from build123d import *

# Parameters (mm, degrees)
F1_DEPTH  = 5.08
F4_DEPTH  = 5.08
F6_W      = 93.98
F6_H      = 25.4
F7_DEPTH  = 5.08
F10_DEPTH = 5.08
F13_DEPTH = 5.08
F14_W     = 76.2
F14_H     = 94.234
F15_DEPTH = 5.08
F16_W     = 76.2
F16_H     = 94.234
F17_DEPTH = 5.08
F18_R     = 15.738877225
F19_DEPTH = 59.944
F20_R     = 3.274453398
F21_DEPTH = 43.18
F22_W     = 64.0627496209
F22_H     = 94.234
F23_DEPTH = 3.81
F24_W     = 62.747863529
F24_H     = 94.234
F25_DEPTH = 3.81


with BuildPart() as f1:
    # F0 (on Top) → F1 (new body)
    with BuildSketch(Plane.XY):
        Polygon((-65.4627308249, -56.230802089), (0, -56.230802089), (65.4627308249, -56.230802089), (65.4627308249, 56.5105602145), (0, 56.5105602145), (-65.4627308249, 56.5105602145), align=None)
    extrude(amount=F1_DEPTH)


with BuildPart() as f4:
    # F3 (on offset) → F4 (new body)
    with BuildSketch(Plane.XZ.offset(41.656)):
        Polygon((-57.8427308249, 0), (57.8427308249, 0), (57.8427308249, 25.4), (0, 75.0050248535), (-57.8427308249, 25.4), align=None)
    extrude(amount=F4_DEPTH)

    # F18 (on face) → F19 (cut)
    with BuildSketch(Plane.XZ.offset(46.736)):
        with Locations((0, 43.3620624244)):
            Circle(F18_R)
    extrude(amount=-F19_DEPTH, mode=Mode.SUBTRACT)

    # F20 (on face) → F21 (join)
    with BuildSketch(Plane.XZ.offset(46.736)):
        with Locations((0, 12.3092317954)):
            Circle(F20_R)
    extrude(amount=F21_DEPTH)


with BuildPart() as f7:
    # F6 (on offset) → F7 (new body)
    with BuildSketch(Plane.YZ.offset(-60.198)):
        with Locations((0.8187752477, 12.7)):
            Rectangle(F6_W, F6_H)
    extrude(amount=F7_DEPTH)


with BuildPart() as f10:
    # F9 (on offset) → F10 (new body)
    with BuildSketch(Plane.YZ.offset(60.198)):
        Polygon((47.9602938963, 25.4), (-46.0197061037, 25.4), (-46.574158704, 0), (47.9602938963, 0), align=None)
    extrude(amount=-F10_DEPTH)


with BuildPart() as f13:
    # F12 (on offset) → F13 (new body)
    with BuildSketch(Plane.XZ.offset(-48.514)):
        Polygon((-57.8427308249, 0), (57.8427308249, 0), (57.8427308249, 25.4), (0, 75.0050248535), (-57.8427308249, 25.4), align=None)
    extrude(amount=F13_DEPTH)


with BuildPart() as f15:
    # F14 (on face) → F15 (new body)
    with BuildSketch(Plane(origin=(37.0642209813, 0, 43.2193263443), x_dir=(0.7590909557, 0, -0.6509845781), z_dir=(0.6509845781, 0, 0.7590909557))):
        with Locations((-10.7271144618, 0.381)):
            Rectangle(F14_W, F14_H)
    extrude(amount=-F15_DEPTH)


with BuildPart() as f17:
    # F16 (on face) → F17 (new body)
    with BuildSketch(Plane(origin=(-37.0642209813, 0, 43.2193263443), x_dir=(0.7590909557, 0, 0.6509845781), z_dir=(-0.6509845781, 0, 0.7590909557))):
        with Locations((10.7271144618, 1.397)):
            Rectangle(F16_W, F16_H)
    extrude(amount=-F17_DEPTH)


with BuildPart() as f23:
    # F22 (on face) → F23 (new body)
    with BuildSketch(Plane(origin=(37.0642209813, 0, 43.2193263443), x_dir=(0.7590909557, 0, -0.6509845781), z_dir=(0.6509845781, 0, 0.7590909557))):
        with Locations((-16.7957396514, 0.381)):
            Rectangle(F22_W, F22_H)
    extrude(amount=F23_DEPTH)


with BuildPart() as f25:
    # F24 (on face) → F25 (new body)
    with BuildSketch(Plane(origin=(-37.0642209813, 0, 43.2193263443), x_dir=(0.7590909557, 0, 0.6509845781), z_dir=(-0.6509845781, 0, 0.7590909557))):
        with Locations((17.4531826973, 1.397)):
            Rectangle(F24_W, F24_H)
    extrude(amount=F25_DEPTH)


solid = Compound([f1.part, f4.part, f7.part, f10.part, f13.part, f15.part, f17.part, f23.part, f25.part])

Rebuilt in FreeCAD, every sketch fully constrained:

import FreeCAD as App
import Part
import Sketcher
Q = App.Units.Quantity

doc = App.newDocument("Part")
params = doc.addObject("Spreadsheet::Sheet", "Params")
for row, (alias, value) in enumerate([
    ("pad1_length", "0.2 in"),
    ("sketch2_height", "1 in"),
    ("sketch2_length", "3 in"),
    ("pad2_length", "0.2 in"),
    ("pocket1_length", "2.36 in"),
    ("pad3_length", "1.7 in"),
    ("sketch5_height", "1 in"),
    ("sketch5_width", "3.7 in"),
    ("pad4_length", "0.2 in"),
    ("sketch6_height", "1 in"),
    ("sketch6_width", "3.7 in"),
    ("pad5_length", "0.2 in"),
    ("sketch7_height", "1 in"),
    ("sketch7_length", "3 in"),
    ("pad6_length", "0.2 in"),
    ("sketch8_width", "3 in"),
    ("sketch8_height", "3.71 in"),
    ("pad7_length", "0.2 in"),
    ("sketch9_width", "3 in"),
    ("sketch9_height", "3.71 in"),
    ("pad8_length", "0.2 in"),
    ("sketch10_height", "3.71 in"),
    ("pad9_length", "0.15 in"),
    ("sketch11_height", "3.71 in"),
    ("pad10_length", "0.15 in"),
], start=1):
    params.set(f"A{row}", alias)
    params.set(f"B{row}", "=" + value)
    params.setAlias(f"B{row}", alias)

body = doc.addObject("PartDesign::Body", "Body")

# Sketch on XY plane
sketch1 = doc.addObject("Sketcher::SketchObject", "Sketch")
body.addObject(sketch1)
sketch1.AttachmentSupport = (doc.XY_Plane, [""])
sketch1.MapMode = "FlatFace"
sketch1.addGeometry(Part.LineSegment(App.Vector(-65, -56, 0), App.Vector(65, -56, 0)), False)
sketch1.addGeometry(Part.LineSegment(App.Vector(65, -56, 0), App.Vector(65, 57, 0)), False)
sketch1.addGeometry(Part.LineSegment(App.Vector(65, 57, 0), App.Vector(-65, 57, 0)), False)
sketch1.addGeometry(Part.LineSegment(App.Vector(-65, 57, 0), App.Vector(-65, -56, 0)), False)
sketch1.addConstraint(Sketcher.Constraint("Coincident", 0, 2, 1, 1))
sketch1.addConstraint(Sketcher.Constraint("Coincident", 1, 2, 2, 1))
sketch1.addConstraint(Sketcher.Constraint("Coincident", 2, 2, 3, 1))
sketch1.addConstraint(Sketcher.Constraint("Coincident", 3, 2, 0, 1))
sketch1.addConstraint(Sketcher.Constraint("Horizontal", 0))
sketch1.addConstraint(Sketcher.Constraint("Vertical", 1))
sketch1.addConstraint(Sketcher.Constraint("Horizontal", 2))
sketch1.addConstraint(Sketcher.Constraint("Vertical", 3))
sketch1.addConstraint(Sketcher.Constraint("DistanceX", 0, 1, 0, 2, Q("130.925462 mm")))
sketch1.addConstraint(Sketcher.Constraint("DistanceY", 1, 1, 1, 2, Q("112.741362 mm")))
sketch1.addConstraint(Sketcher.Constraint("DistanceX", -1, 1, 0, 2, Q("65.462731 mm")))
sketch1.addConstraint(Sketcher.Constraint("DistanceY", -1, 1, 1, 2, Q("56.51056 mm")))
pad1 = doc.addObject("PartDesign::Pad", "Pad")
body.addObject(pad1)
pad1.Profile = sketch1
pad1.setExpression("Length", "Params.pad1_length")
body2 = doc.addObject("PartDesign::Body", "Body001")

# Sketch on XZ plane
sketch2 = doc.addObject("Sketcher::SketchObject", "Sketch001")
body2.addObject(sketch2)
sketch2.AttachmentSupport = (doc.getObject("XZ_Plane001"), [""])
sketch2.MapMode = "FlatFace"
sketch2.AttachmentOffset = App.Placement(App.Vector(0, 0, 1.64 * 25.4), App.Rotation())
sketch2.addGeometry(Part.LineSegment(App.Vector(-58, 0, 0), App.Vector(58, 0, 0)), False)
sketch2.addGeometry(Part.LineSegment(App.Vector(58, 0, 0), App.Vector(58, 25, 0)), False)
sketch2.addGeometry(Part.LineSegment(App.Vector(58, 25, 0), App.Vector(0, 75, 0)), False)
sketch2.addGeometry(Part.LineSegment(App.Vector(0, 75, 0), App.Vector(-58, 25, 0)), False)
sketch2.addGeometry(Part.LineSegment(App.Vector(-58, 25, 0), App.Vector(-58, 0, 0)), False)
sketch2.addConstraint(Sketcher.Constraint("Coincident", 0, 2, 1, 1))
sketch2.addConstraint(Sketcher.Constraint("Coincident", 1, 2, 2, 1))
sketch2.addConstraint(Sketcher.Constraint("Coincident", 2, 2, 3, 1))
sketch2.addConstraint(Sketcher.Constraint("Coincident", 3, 2, 4, 1))
sketch2.addConstraint(Sketcher.Constraint("Coincident", 4, 2, 0, 1))
sketch2.addConstraint(Sketcher.Constraint("Horizontal", 0))
sketch2.addConstraint(Sketcher.Constraint("Vertical", 1))
sketch2.addConstraint(Sketcher.Constraint("Vertical", 4))
sketch2.addConstraint(Sketcher.Constraint("Symmetric", 0, 2, 4, 2, -1, 1))
sketch2.addConstraint(Sketcher.Constraint("PointOnObject", 2, 2, -2))
sketch2.addConstraint(Sketcher.Constraint("Horizontal", 1, 2, 3, 2))
sketch2.addConstraint(Sketcher.Constraint("DistanceY", 1, 1, 1, 2, Q("1 in")))
sketch2.addConstraint(Sketcher.Constraint("Distance", 2, Q("3 in")))
sketch2.addConstraint(Sketcher.Constraint("DistanceX", 0, 1, 0, 2, Q("115.685462 mm")))
sketch2.setExpression("Constraints[11]", "Params.sketch2_height")
sketch2.setExpression("Constraints[12]", "Params.sketch2_length")
pad2 = doc.addObject("PartDesign::Pad", "Pad001")
body2.addObject(pad2)
pad2.Profile = sketch2
pad2.setExpression("Length", "Params.pad2_length")

# Sketch on XZ plane
sketch3 = doc.addObject("Sketcher::SketchObject", "Sketch002")
body2.addObject(sketch3)
sketch3.AttachmentSupport = (doc.getObject("XZ_Plane001"), [""])
sketch3.MapMode = "FlatFace"
sketch3.AttachmentOffset = App.Placement(App.Vector(0, 0, 1.84 * 25.4), App.Rotation())
sketch3.addGeometry(Part.Circle(App.Vector(0, 43, 0), App.Vector(0, 0, 1), 16), False)
sketch3.addConstraint(Sketcher.Constraint("PointOnObject", 0, 3, -2))
sketch3.addConstraint(Sketcher.Constraint("Diameter", 0, Q("31.477754 mm")))
sketch3.addConstraint(Sketcher.Constraint("DistanceY", -1, 1, 0, 3, Q("43.362062 mm")))
pocket1 = doc.addObject("PartDesign::Pocket", "Pocket")
body2.addObject(pocket1)
pocket1.Profile = sketch3
pocket1.setExpression("Length", "Params.pocket1_length")

# Sketch on XZ plane
sketch4 = doc.addObject("Sketcher::SketchObject", "Sketch003")
body2.addObject(sketch4)
sketch4.AttachmentSupport = (doc.getObject("XZ_Plane001"), [""])
sketch4.MapMode = "FlatFace"
sketch4.AttachmentOffset = App.Placement(App.Vector(0, 0, 1.84 * 25.4), App.Rotation())
sketch4.addGeometry(Part.Circle(App.Vector(0, 12.3, 0), App.Vector(0, 0, 1), 3.3), False)
sketch4.addConstraint(Sketcher.Constraint("PointOnObject", 0, 3, -2))
sketch4.addConstraint(Sketcher.Constraint("Diameter", 0, Q("6.548907 mm")))
sketch4.addConstraint(Sketcher.Constraint("DistanceY", -1, 1, 0, 3, Q("12.309232 mm")))
pad3 = doc.addObject("PartDesign::Pad", "Pad002")
body2.addObject(pad3)
pad3.Profile = sketch4
pad3.setExpression("Length", "Params.pad3_length")
body3 = doc.addObject("PartDesign::Body", "Body002")

# Sketch on YZ plane
sketch5 = doc.addObject("Sketcher::SketchObject", "Sketch004")
body3.addObject(sketch5)
sketch5.AttachmentSupport = (doc.getObject("YZ_Plane002"), [""])
sketch5.MapMode = "FlatFace"
sketch5.AttachmentOffset = App.Placement(App.Vector(0, 0, -2.37 * 25.4), App.Rotation())
sketch5.addGeometry(Part.LineSegment(App.Vector(-46, 25, 0), App.Vector(-46, 0, 0)), False)
sketch5.addGeometry(Part.LineSegment(App.Vector(-46, 0, 0), App.Vector(48, 0, 0)), False)
sketch5.addGeometry(Part.LineSegment(App.Vector(48, 0, 0), App.Vector(48, 25, 0)), False)
sketch5.addGeometry(Part.LineSegment(App.Vector(48, 25, 0), App.Vector(-46, 25, 0)), False)
sketch5.addConstraint(Sketcher.Constraint("Coincident", 0, 2, 1, 1))
sketch5.addConstraint(Sketcher.Constraint("Coincident", 1, 2, 2, 1))
sketch5.addConstraint(Sketcher.Constraint("Coincident", 2, 2, 3, 1))
sketch5.addConstraint(Sketcher.Constraint("Coincident", 3, 2, 0, 1))
sketch5.addConstraint(Sketcher.Constraint("Vertical", 0))
sketch5.addConstraint(Sketcher.Constraint("Horizontal", 1))
sketch5.addConstraint(Sketcher.Constraint("Vertical", 2))
sketch5.addConstraint(Sketcher.Constraint("Horizontal", 3))
sketch5.addConstraint(Sketcher.Constraint("PointOnObject", 0, 2, -1))
sketch5.addConstraint(Sketcher.Constraint("DistanceY", 0, 2, 0, 1, Q("1 in")))
sketch5.addConstraint(Sketcher.Constraint("DistanceX", 1, 1, 1, 2, Q("3.7 in")))
sketch5.addConstraint(Sketcher.Constraint("DistanceX", 0, 2, -1, 1, Q("46.171225 mm")))
sketch5.setExpression("Constraints[9]", "Params.sketch5_height")
sketch5.setExpression("Constraints[10]", "Params.sketch5_width")
pad4 = doc.addObject("PartDesign::Pad", "Pad003")
body3.addObject(pad4)
pad4.Profile = sketch5
pad4.setExpression("Length", "Params.pad4_length")
body4 = doc.addObject("PartDesign::Body", "Body003")

# Sketch on YZ plane
sketch6 = doc.addObject("Sketcher::SketchObject", "Sketch005")
body4.addObject(sketch6)
sketch6.AttachmentSupport = (doc.getObject("YZ_Plane003"), [""])
sketch6.MapMode = "FlatFace"
sketch6.AttachmentOffset = App.Placement(App.Vector(0, 0, 2.37 * 25.4), App.Rotation())
sketch6.addGeometry(Part.LineSegment(App.Vector(48, 25, 0), App.Vector(-46, 25, 0)), False)
sketch6.addGeometry(Part.LineSegment(App.Vector(-46, 25, 0), App.Vector(-47, 0, 0)), False)
sketch6.addGeometry(Part.LineSegment(App.Vector(-47, 0, 0), App.Vector(48, 0, 0)), False)
sketch6.addGeometry(Part.LineSegment(App.Vector(48, 0, 0), App.Vector(48, 25, 0)), False)
sketch6.addConstraint(Sketcher.Constraint("Coincident", 0, 2, 1, 1))
sketch6.addConstraint(Sketcher.Constraint("Coincident", 1, 2, 2, 1))
sketch6.addConstraint(Sketcher.Constraint("Coincident", 2, 2, 3, 1))
sketch6.addConstraint(Sketcher.Constraint("Coincident", 3, 2, 0, 1))
sketch6.addConstraint(Sketcher.Constraint("Horizontal", 0))
sketch6.addConstraint(Sketcher.Constraint("Horizontal", 2))
sketch6.addConstraint(Sketcher.Constraint("Vertical", 3))
sketch6.addConstraint(Sketcher.Constraint("PointOnObject", 1, 2, -1))
sketch6.addConstraint(Sketcher.Constraint("DistanceY", 3, 1, 3, 2, Q("1 in")))
sketch6.addConstraint(Sketcher.Constraint("DistanceX", 0, 2, 0, 1, Q("3.7 in")))
sketch6.addConstraint(Sketcher.Constraint("Distance", 1, Q("25.406051 mm")))
sketch6.addConstraint(Sketcher.Constraint("DistanceX", 1, 2, -1, 1, Q("46.574159 mm")))
sketch6.setExpression("Constraints[8]", "Params.sketch6_height")
sketch6.setExpression("Constraints[9]", "Params.sketch6_width")
pad5 = doc.addObject("PartDesign::Pad", "Pad004")
body4.addObject(pad5)
pad5.Profile = sketch6
pad5.setExpression("Length", "Params.pad5_length")
pad5.Reversed = True
body5 = doc.addObject("PartDesign::Body", "Body004")

# Sketch on XZ plane
sketch7 = doc.addObject("Sketcher::SketchObject", "Sketch006")
body5.addObject(sketch7)
sketch7.AttachmentSupport = (doc.getObject("XZ_Plane004"), [""])
sketch7.MapMode = "FlatFace"
sketch7.AttachmentOffset = App.Placement(App.Vector(0, 0, -1.91 * 25.4), App.Rotation())
sketch7.addGeometry(Part.LineSegment(App.Vector(-58, 0, 0), App.Vector(58, 0, 0)), False)
sketch7.addGeometry(Part.LineSegment(App.Vector(58, 0, 0), App.Vector(58, 25, 0)), False)
sketch7.addGeometry(Part.LineSegment(App.Vector(58, 25, 0), App.Vector(0, 75, 0)), False)
sketch7.addGeometry(Part.LineSegment(App.Vector(0, 75, 0), App.Vector(-58, 25, 0)), False)
sketch7.addGeometry(Part.LineSegment(App.Vector(-58, 25, 0), App.Vector(-58, 0, 0)), False)
sketch7.addConstraint(Sketcher.Constraint("Coincident", 0, 2, 1, 1))
sketch7.addConstraint(Sketcher.Constraint("Coincident", 1, 2, 2, 1))
sketch7.addConstraint(Sketcher.Constraint("Coincident", 2, 2, 3, 1))
sketch7.addConstraint(Sketcher.Constraint("Coincident", 3, 2, 4, 1))
sketch7.addConstraint(Sketcher.Constraint("Coincident", 4, 2, 0, 1))
sketch7.addConstraint(Sketcher.Constraint("Horizontal", 0))
sketch7.addConstraint(Sketcher.Constraint("Vertical", 1))
sketch7.addConstraint(Sketcher.Constraint("Vertical", 4))
sketch7.addConstraint(Sketcher.Constraint("Symmetric", 0, 2, 4, 2, -1, 1))
sketch7.addConstraint(Sketcher.Constraint("PointOnObject", 2, 2, -2))
sketch7.addConstraint(Sketcher.Constraint("Horizontal", 1, 2, 3, 2))
sketch7.addConstraint(Sketcher.Constraint("DistanceY", 1, 1, 1, 2, Q("1 in")))
sketch7.addConstraint(Sketcher.Constraint("Distance", 2, Q("3 in")))
sketch7.addConstraint(Sketcher.Constraint("DistanceX", 0, 1, 0, 2, Q("115.685462 mm")))
sketch7.setExpression("Constraints[11]", "Params.sketch7_height")
sketch7.setExpression("Constraints[12]", "Params.sketch7_length")
pad6 = doc.addObject("PartDesign::Pad", "Pad005")
body5.addObject(pad6)
pad6.Profile = sketch7
pad6.setExpression("Length", "Params.pad6_length")
body6 = doc.addObject("PartDesign::Body", "Body005")

# Sketch on an angled plane
sketch8 = doc.addObject("Sketcher::SketchObject", "Sketch007")
body6.addObject(sketch8)
sketch8.Placement = App.Placement(App.Vector(37.064221, 0, 43.219326), App.Rotation(App.Vector(0.759090956, 0, -0.650984578), App.Vector(0, 1, 0), App.Vector(0.650984578, 0, 0.759090956), "ZXY"))
sketch8.addGeometry(Part.LineSegment(App.Vector(-49, 47, 0), App.Vector(-49, -47, 0)), False)
sketch8.addGeometry(Part.LineSegment(App.Vector(-49, -47, 0), App.Vector(27, -47, 0)), False)
sketch8.addGeometry(Part.LineSegment(App.Vector(27, -47, 0), App.Vector(27, 47, 0)), False)
sketch8.addGeometry(Part.LineSegment(App.Vector(27, 47, 0), App.Vector(-49, 47, 0)), False)
sketch8.addConstraint(Sketcher.Constraint("Coincident", 0, 2, 1, 1))
sketch8.addConstraint(Sketcher.Constraint("Coincident", 1, 2, 2, 1))
sketch8.addConstraint(Sketcher.Constraint("Coincident", 2, 2, 3, 1))
sketch8.addConstraint(Sketcher.Constraint("Coincident", 3, 2, 0, 1))
sketch8.addConstraint(Sketcher.Constraint("Vertical", 0))
sketch8.addConstraint(Sketcher.Constraint("Horizontal", 1))
sketch8.addConstraint(Sketcher.Constraint("Vertical", 2))
sketch8.addConstraint(Sketcher.Constraint("Horizontal", 3))
sketch8.addConstraint(Sketcher.Constraint("DistanceX", 1, 1, 1, 2, Q("3 in")))
sketch8.addConstraint(Sketcher.Constraint("DistanceY", 0, 2, 0, 1, Q("3.71 in")))
sketch8.addConstraint(Sketcher.Constraint("DistanceY", 0, 2, -1, 1, Q("1.84 in")))
sketch8.addConstraint(Sketcher.Constraint("DistanceX", 0, 2, -1, 1, Q("48.827114 mm")))
sketch8.setExpression("Constraints[8]", "Params.sketch8_width")
sketch8.setExpression("Constraints[9]", "Params.sketch8_height")
pad7 = doc.addObject("PartDesign::Pad", "Pad006")
body6.addObject(pad7)
pad7.Profile = sketch8
pad7.setExpression("Length", "Params.pad7_length")
pad7.Reversed = True
body7 = doc.addObject("PartDesign::Body", "Body006")

# Sketch on an angled plane
sketch9 = doc.addObject("Sketcher::SketchObject", "Sketch008")
body7.addObject(sketch9)
sketch9.Placement = App.Placement(App.Vector(-37.064221, 0, 43.219326), App.Rotation(App.Vector(0.759090956, 0, 0.650984578), App.Vector(0, 1, 0), App.Vector(-0.650984578, 0, 0.759090956), "ZXY"))
sketch9.addGeometry(Part.LineSegment(App.Vector(-27, 49, 0), App.Vector(-27, -46, 0)), False)
sketch9.addGeometry(Part.LineSegment(App.Vector(-27, -46, 0), App.Vector(49, -46, 0)), False)
sketch9.addGeometry(Part.LineSegment(App.Vector(49, -46, 0), App.Vector(49, 49, 0)), False)
sketch9.addGeometry(Part.LineSegment(App.Vector(49, 49, 0), App.Vector(-27, 49, 0)), False)
sketch9.addConstraint(Sketcher.Constraint("Coincident", 0, 2, 1, 1))
sketch9.addConstraint(Sketcher.Constraint("Coincident", 1, 2, 2, 1))
sketch9.addConstraint(Sketcher.Constraint("Coincident", 2, 2, 3, 1))
sketch9.addConstraint(Sketcher.Constraint("Coincident", 3, 2, 0, 1))
sketch9.addConstraint(Sketcher.Constraint("Vertical", 0))
sketch9.addConstraint(Sketcher.Constraint("Horizontal", 1))
sketch9.addConstraint(Sketcher.Constraint("Vertical", 2))
sketch9.addConstraint(Sketcher.Constraint("Horizontal", 3))
sketch9.addConstraint(Sketcher.Constraint("DistanceX", 1, 1, 1, 2, Q("3 in")))
sketch9.addConstraint(Sketcher.Constraint("DistanceY", 0, 2, 0, 1, Q("3.71 in")))
sketch9.addConstraint(Sketcher.Constraint("DistanceY", 0, 2, -1, 1, Q("1.8 in")))
sketch9.addConstraint(Sketcher.Constraint("DistanceX", 0, 2, -1, 1, Q("27.372886 mm")))
sketch9.setExpression("Constraints[8]", "Params.sketch9_width")
sketch9.setExpression("Constraints[9]", "Params.sketch9_height")
pad8 = doc.addObject("PartDesign::Pad", "Pad007")
body7.addObject(pad8)
pad8.Profile = sketch9
pad8.setExpression("Length", "Params.pad8_length")
pad8.Reversed = True
body8 = doc.addObject("PartDesign::Body", "Body007")

# Sketch on an angled plane
sketch10 = doc.addObject("Sketcher::SketchObject", "Sketch009")
body8.addObject(sketch10)
sketch10.Placement = App.Placement(App.Vector(37.064221, 0, 43.219326), App.Rotation(App.Vector(0.759090956, 0, -0.650984578), App.Vector(0, 1, 0), App.Vector(0.650984578, 0, 0.759090956), "ZXY"))
sketch10.addGeometry(Part.LineSegment(App.Vector(-49, 47, 0), App.Vector(-49, -47, 0)), False)
sketch10.addGeometry(Part.LineSegment(App.Vector(-49, -47, 0), App.Vector(15, -47, 0)), False)
sketch10.addGeometry(Part.LineSegment(App.Vector(15, -47, 0), App.Vector(15, 47, 0)), False)
sketch10.addGeometry(Part.LineSegment(App.Vector(15, 47, 0), App.Vector(-49, 47, 0)), False)
sketch10.addConstraint(Sketcher.Constraint("Coincident", 0, 2, 1, 1))
sketch10.addConstraint(Sketcher.Constraint("Coincident", 1, 2, 2, 1))
sketch10.addConstraint(Sketcher.Constraint("Coincident", 2, 2, 3, 1))
sketch10.addConstraint(Sketcher.Constraint("Coincident", 3, 2, 0, 1))
sketch10.addConstraint(Sketcher.Constraint("Vertical", 0))
sketch10.addConstraint(Sketcher.Constraint("Horizontal", 1))
sketch10.addConstraint(Sketcher.Constraint("Vertical", 2))
sketch10.addConstraint(Sketcher.Constraint("Horizontal", 3))
sketch10.addConstraint(Sketcher.Constraint("DistanceY", 0, 2, 0, 1, Q("3.71 in")))
sketch10.addConstraint(Sketcher.Constraint("DistanceY", 0, 2, -1, 1, Q("1.84 in")))
sketch10.addConstraint(Sketcher.Constraint("DistanceX", 1, 1, 1, 2, Q("64.06275 mm")))
sketch10.addConstraint(Sketcher.Constraint("DistanceX", 0, 2, -1, 1, Q("48.827114 mm")))
sketch10.setExpression("Constraints[8]", "Params.sketch10_height")
pad9 = doc.addObject("PartDesign::Pad", "Pad008")
body8.addObject(pad9)
pad9.Profile = sketch10
pad9.setExpression("Length", "Params.pad9_length")
body9 = doc.addObject("PartDesign::Body", "Body008")

# Sketch on an angled plane
sketch11 = doc.addObject("Sketcher::SketchObject", "Sketch010")
body9.addObject(sketch11)
sketch11.Placement = App.Placement(App.Vector(-37.064221, 0, 43.219326), App.Rotation(App.Vector(0.759090956, 0, 0.650984578), App.Vector(0, 1, 0), App.Vector(-0.650984578, 0, 0.759090956), "ZXY"))
sketch11.addGeometry(Part.LineSegment(App.Vector(-14, 49, 0), App.Vector(-14, -46, 0)), False)
sketch11.addGeometry(Part.LineSegment(App.Vector(-14, -46, 0), App.Vector(49, -46, 0)), False)
sketch11.addGeometry(Part.LineSegment(App.Vector(49, -46, 0), App.Vector(49, 49, 0)), False)
sketch11.addGeometry(Part.LineSegment(App.Vector(49, 49, 0), App.Vector(-14, 49, 0)), False)
sketch11.addConstraint(Sketcher.Constraint("Coincident", 0, 2, 1, 1))
sketch11.addConstraint(Sketcher.Constraint("Coincident", 1, 2, 2, 1))
sketch11.addConstraint(Sketcher.Constraint("Coincident", 2, 2, 3, 1))
sketch11.addConstraint(Sketcher.Constraint("Coincident", 3, 2, 0, 1))
sketch11.addConstraint(Sketcher.Constraint("Vertical", 0))
sketch11.addConstraint(Sketcher.Constraint("Horizontal", 1))
sketch11.addConstraint(Sketcher.Constraint("Vertical", 2))
sketch11.addConstraint(Sketcher.Constraint("Horizontal", 3))
sketch11.addConstraint(Sketcher.Constraint("DistanceY", 0, 2, 0, 1, Q("3.71 in")))
sketch11.addConstraint(Sketcher.Constraint("DistanceY", 0, 2, -1, 1, Q("1.8 in")))
sketch11.addConstraint(Sketcher.Constraint("DistanceX", 1, 1, 1, 2, Q("62.747864 mm")))
sketch11.addConstraint(Sketcher.Constraint("DistanceX", 0, 2, -1, 1, Q("13.920749 mm")))
sketch11.setExpression("Constraints[8]", "Params.sketch11_height")
pad10 = doc.addObject("PartDesign::Pad", "Pad009")
body9.addObject(pad10)
pad10.Profile = sketch11
pad10.setExpression("Length", "Params.pad10_length")

doc.recompute()
